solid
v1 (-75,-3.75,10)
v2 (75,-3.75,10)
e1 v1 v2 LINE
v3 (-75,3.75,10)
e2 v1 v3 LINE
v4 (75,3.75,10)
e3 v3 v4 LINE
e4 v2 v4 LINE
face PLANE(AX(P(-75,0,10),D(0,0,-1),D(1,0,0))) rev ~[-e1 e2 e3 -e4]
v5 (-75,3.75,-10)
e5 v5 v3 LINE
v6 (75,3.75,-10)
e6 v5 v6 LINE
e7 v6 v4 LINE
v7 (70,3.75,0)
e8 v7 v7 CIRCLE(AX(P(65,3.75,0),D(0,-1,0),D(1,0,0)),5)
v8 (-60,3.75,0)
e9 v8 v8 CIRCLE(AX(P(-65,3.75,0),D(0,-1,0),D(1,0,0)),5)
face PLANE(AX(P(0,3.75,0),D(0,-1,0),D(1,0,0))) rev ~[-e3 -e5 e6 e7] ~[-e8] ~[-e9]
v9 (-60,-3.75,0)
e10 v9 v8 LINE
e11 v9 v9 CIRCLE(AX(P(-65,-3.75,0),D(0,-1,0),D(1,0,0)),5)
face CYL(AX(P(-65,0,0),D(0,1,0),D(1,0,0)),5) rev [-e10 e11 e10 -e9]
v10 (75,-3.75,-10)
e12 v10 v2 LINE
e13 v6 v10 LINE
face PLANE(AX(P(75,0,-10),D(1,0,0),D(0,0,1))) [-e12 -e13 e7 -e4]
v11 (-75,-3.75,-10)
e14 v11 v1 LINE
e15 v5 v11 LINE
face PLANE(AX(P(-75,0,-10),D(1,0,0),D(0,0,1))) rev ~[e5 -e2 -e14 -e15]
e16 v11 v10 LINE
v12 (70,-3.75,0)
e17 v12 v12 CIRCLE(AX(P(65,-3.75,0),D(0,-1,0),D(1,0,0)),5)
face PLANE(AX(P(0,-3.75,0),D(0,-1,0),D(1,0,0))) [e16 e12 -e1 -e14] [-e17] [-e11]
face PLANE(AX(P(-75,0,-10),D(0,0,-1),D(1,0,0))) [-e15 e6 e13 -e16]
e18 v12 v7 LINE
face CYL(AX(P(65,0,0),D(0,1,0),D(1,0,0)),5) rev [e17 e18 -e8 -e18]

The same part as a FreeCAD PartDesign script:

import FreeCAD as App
import Part
import Sketcher
from FreeCAD import Vector

doc = App.newDocument("Part")
params = doc.addObject("Spreadsheet::Sheet", "Params")
for row, (alias, value) in enumerate([
    ("sketch1_diameter", "10 mm"),
    ("sketch1_width", "150 mm"),
    ("sketch1_height", "20 mm"),
    ("pad1_length", "7.5 mm"),
], start=1):
    params.set(f"A{row}", alias)
    params.set(f"B{row}", "=" + value)
    params.setAlias(f"B{row}", alias)

body = doc.addObject("PartDesign::Body", "Body")

# Sketch on XZ plane
sketch1 = body.newObject("Sketcher::SketchObject", "Sketch")
sketch1.AttachmentSupport = (doc.getObject("XZ_Plane"), [""])
sketch1.MapMode = "FlatFace"
sketch1.addGeometry(Part.LineSegment(Vector(-75, 10, 0), Vector(-75, -10, 0)), False)
sketch1.addGeometry(Part.LineSegment(Vector(-75, -10, 0), Vector(75, -10, 0)), False)
sketch1.addGeometry(Part.LineSegment(Vector(75, -10, 0), Vector(75, 10, 0)), False)
sketch1.addGeometry(Part.LineSegment(Vector(75, 10, 0), Vector(-75, 10, 0)), False)
sketch1.addGeometry(Part.Circle(Vector(-65, 0, 0), Vector(0, 0, 1), 5), False)
sketch1.addGeometry(Part.Circle(Vector(65, 0, 0), Vector(0, 0, 1), 5), False)
sketch1.addConstraint(Sketcher.Constraint("Coincident", 0, 2, 1, 1))
sketch1.addConstraint(Sketcher.Constraint("Coincident", 1, 2, 2, 1))
sketch1.addConstraint(Sketcher.Constraint("Coincident", 2, 2, 3, 1))
sketch1.addConstraint(Sketcher.Constraint("Coincident", 3, 2, 0, 1))
sketch1.addConstraint(Sketcher.Constraint("Vertical", 0))
sketch1.addConstraint(Sketcher.Constraint("Horizontal", 1))
sketch1.addConstraint(Sketcher.Constraint("Vertical", 2))
sketch1.addConstraint(Sketcher.Constraint("Horizontal", 3))
sketch1.addConstraint(Sketcher.Constraint("Equal", 4, 5))
sketch1.addConstraint(Sketcher.Constraint("Symmetric", 4, 3, 5, 3, -1, 1))
sketch1.addConstraint(Sketcher.Constraint("Symmetric", 0, 2, 2, 2, -1, 1))
sketch1.addConstraint(Sketcher.Constraint("PointOnObject", 4, 3, -1))
sketch1.addConstraint(Sketcher.Constraint("Diameter", 4, 10.0))
sketch1.addConstraint(Sketcher.Constraint("DistanceX", 1, 1, 1, 2, 150.0))
sketch1.addConstraint(Sketcher.Constraint("DistanceY", 0, 2, 0, 1, 20.0))
sketch1.addConstraint(Sketcher.Constraint("DistanceX", 4, 3, -1, 1, 65.0))
sketch1.setExpression("Constraints[12]", "Params.sketch1_diameter")
sketch1.setExpression("Constraints[13]", "Params.sketch1_width")
sketch1.setExpression("Constraints[14]", "Params.sketch1_height")
pad1 = body.newObject("PartDesign::Pad", "Pad")
pad1.Profile = sketch1
pad1.setExpression("Length", "Params.pad1_length")
pad1.Midplane = True

doc.recompute()
